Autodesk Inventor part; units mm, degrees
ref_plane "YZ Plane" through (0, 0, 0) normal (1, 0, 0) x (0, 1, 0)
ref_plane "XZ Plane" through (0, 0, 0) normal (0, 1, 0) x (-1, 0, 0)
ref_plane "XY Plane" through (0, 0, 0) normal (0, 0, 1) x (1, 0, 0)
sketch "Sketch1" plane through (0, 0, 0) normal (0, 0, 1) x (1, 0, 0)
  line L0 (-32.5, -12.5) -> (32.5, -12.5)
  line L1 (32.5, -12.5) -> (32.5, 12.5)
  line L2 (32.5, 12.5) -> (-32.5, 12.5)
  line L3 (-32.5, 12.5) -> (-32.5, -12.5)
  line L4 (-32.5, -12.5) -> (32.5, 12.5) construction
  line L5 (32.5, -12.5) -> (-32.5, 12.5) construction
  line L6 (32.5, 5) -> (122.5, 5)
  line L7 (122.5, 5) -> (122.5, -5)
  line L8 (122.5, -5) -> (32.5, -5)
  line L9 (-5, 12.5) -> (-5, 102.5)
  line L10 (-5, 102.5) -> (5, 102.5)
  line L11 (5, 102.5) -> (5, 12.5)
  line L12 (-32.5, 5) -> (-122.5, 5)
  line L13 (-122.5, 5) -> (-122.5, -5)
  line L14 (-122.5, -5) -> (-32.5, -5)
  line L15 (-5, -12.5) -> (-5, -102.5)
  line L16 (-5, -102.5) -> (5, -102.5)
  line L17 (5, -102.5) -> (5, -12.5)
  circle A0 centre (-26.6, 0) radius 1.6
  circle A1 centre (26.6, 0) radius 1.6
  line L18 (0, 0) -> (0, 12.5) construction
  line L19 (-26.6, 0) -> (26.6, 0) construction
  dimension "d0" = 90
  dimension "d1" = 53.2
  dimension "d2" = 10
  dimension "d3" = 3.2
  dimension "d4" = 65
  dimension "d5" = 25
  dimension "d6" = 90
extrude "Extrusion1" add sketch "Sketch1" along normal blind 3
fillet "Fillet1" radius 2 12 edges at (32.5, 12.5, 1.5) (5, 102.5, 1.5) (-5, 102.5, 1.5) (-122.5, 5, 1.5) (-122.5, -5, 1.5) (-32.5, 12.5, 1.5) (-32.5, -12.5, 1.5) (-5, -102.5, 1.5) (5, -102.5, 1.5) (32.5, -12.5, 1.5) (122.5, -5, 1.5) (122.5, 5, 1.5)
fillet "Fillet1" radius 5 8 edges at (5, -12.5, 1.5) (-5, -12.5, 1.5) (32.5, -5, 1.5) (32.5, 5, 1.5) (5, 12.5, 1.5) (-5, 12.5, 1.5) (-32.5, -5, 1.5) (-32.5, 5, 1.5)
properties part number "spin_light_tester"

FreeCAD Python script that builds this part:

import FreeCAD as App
import Part
import Sketcher
from FreeCAD import Vector


def edges_at(feature, points):
    """Names of the edges that pass closest to the given points."""
    edges = feature.Shape.Edges
    near = lambda p: min(range(len(edges)), key=lambda i: edges[i].distToShape(Part.Vertex(*p))[0])
    return sorted({f"Edge{near(p) + 1}" for p in points})

doc = App.newDocument("Part")
body = doc.addObject("PartDesign::Body", "Body")

# Sketch on XY plane
sketch1 = doc.addObject("Sketcher::SketchObject", "Sketch")
body.addObject(sketch1)
sketch1.AttachmentSupport = (doc.XY_Plane, [""])
sketch1.MapMode = "FlatFace"
sketch1.addGeometry(Part.LineSegment(Vector(-32.5, -5, 0), Vector(-32.5, -12.5, 0)), False)
sketch1.addGeometry(Part.LineSegment(Vector(-32.5, -12.5, 0), Vector(-5, -12.5, 0)), False)
sketch1.addGeometry(Part.LineSegment(Vector(-5, -12.5, 0), Vector(-5, -102.5, 0)), False)
sketch1.addGeometry(Part.LineSegment(Vector(-5, -102.5, 0), Vector(5, -102.5, 0)), False)
sketch1.addGeometry(Part.LineSegment(Vector(5, -102.5, 0), Vector(5, -12.5, 0)), False)
sketch1.addGeometry(Part.LineSegment(Vector(5, -12.5, 0), Vector(32.5, -12.5, 0)), False)
sketch1.addGeometry(Part.LineSegment(Vector(32.5, -12.5, 0), Vector(32.5, -5, 0)), False)
sketch1.addGeometry(Part.LineSegment(Vector(32.5, -5, 0), Vector(122.5, -5, 0)), False)
sketch1.addGeometry(Part.LineSegment(Vector(122.5, -5, 0), Vector(122.5, 5, 0)), False)
sketch1.addGeometry(Part.LineSegment(Vector(122.5, 5, 0), Vector(32.5, 5, 0)), False)
sketch1.addGeometry(Part.LineSegment(Vector(32.5, 5, 0), Vector(32.5, 12.5, 0)), False)
sketch1.addGeometry(Part.LineSegment(Vector(32.5, 12.5, 0), Vector(5, 12.5, 0)), False)
sketch1.addGeometry(Part.LineSegment(Vector(5, 12.5, 0), Vector(5, 102.5, 0)), False)
sketch1.addGeometry(Part.LineSegment(Vector(5, 102.5, 0), Vector(-5, 102.5, 0)), False)
sketch1.addGeometry(Part.LineSegment(Vector(-5, 102.5, 0), Vector(-5, 12.5, 0)), False)
sketch1.addGeometry(Part.LineSegment(Vector(-5, 12.5, 0), Vector(-32.5, 12.5, 0)), False)
sketch1.addGeometry(Part.LineSegment(Vector(-32.5, 12.5, 0), Vector(-32.5, 5, 0)), False)
sketch1.addGeometry(Part.LineSegment(Vector(-32.5, 5, 0), Vector(-122.5, 5, 0)), False)
sketch1.addGeometry(Part.LineSegment(Vector(-122.5, 5, 0), Vector(-122.5, -5, 0)), False)
sketch1.addGeometry(Part.LineSegment(Vector(-122.5, -5, 0), Vector(-32.5, -5, 0)), False)
sketch1.addGeometry(Part.Circle(Vector(-26.6, 0, 0), Vector(0, 0, 1), 1.6), False)
sketch1.addGeometry(Part.Circle(Vector(26.6, 0, 0), Vector(0, 0, 1), 1.6), False)
sketch1.addConstraint(Sketcher.Constraint("Coincident", 0, 2, 1, 1))
sketch1.addConstraint(Sketcher.Constraint("Coincident", 1, 2, 2, 1))
sketch1.addConstraint(Sketcher.Constraint("Coincident", 2, 2, 3, 1))
sketch1.addConstraint(Sketcher.Constraint("Coincident", 3, 2, 4, 1))
sketch1.addConstraint(Sketcher.Constraint("Coincident", 4, 2, 5, 1))
sketch1.addConstraint(Sketcher.Constraint("Coincident", 5, 2, 6, 1))
sketch1.addConstraint(Sketcher.Constraint("Coincident", 6, 2, 7, 1))
sketch1.addConstraint(Sketcher.Constraint("Coincident", 7, 2, 8, 1))
sketch1.addConstraint(Sketcher.Constraint("Coincident", 8, 2, 9, 1))
sketch1.addConstraint(Sketcher.Constraint("Coincident", 9, 2, 10, 1))
sketch1.addConstraint(Sketcher.Constraint("Coincident", 10, 2, 11, 1))
sketch1.addConstraint(Sketcher.Constraint("Coincident", 11, 2, 12, 1))
sketch1.addConstraint(Sketcher.Constraint("Coincident", 12, 2, 13, 1))
sketch1.addConstraint(Sketcher.Constraint("Coincident", 13, 2, 14, 1))
sketch1.addConstraint(Sketcher.Constraint("Coincident", 14, 2, 15, 1))
sketch1.addConstraint(Sketcher.Constraint("Coincident", 15, 2, 16, 1))
sketch1.addConstraint(Sketcher.Constraint("Coincident", 16, 2, 17, 1))
sketch1.addConstraint(Sketcher.Constraint("Coincident", 17, 2, 18, 1))
sketch1.addConstraint(Sketcher.Constraint("Coincident", 18, 2, 19, 1))
sketch1.addConstraint(Sketcher.Constraint("Coincident", 19, 2, 0, 1))
sketch1.addConstraint(Sketcher.Constraint("Vertical", 0))
sketch1.addConstraint(Sketcher.Constraint("Horizontal", 1))
sketch1.addConstraint(Sketcher.Constraint("Vertical", 2))
sketch1.addConstraint(Sketcher.Constraint("Horizontal", 3))
sketch1.addConstraint(Sketcher.Constraint("Vertical", 4))
sketch1.addConstraint(Sketcher.Constraint("Horizontal", 5))
sketch1.addConstraint(Sketcher.Constraint("Vertical", 6))
sketch1.addConstraint(Sketcher.Constraint("Horizontal", 7))
sketch1.addConstraint(Sketcher.Constraint("Vertical", 8))
sketch1.addConstraint(Sketcher.Constraint("Horizontal", 9))
sketch1.addConstraint(Sketcher.Constraint("Vertical", 10))
sketch1.addConstraint(Sketcher.Constraint("Horizontal", 11))
sketch1.addConstraint(Sketcher.Constraint("Vertical", 12))
sketch1.addConstraint(Sketcher.Constraint("Horizontal", 13))
sketch1.addConstraint(Sketcher.Constraint("Vertical", 14))
sketch1.addConstraint(Sketcher.Constraint("Horizontal", 15))
sketch1.addConstraint(Sketcher.Constraint("Vertical", 16))
sketch1.addConstraint(Sketcher.Constraint("Horizontal", 17))
sketch1.addConstraint(Sketcher.Constraint("Vertical", 18))
sketch1.addConstraint(Sketcher.Constraint("Horizontal", 19))
sketch1.addConstraint(Sketcher.Constraint("Equal", 20, 21))
sketch1.addConstraint(Sketcher.Constraint("Symmetric", 20, 3, 21, 3, -1, 1))
sketch1.addConstraint(Sketcher.Constraint("Symmetric", 0, 2, 10, 2, -1, 1))
sketch1.addConstraint(Sketcher.Constraint("Symmetric", 2, 2, 12, 2, -1, 1))
sketch1.addConstraint(Sketcher.Constraint("Symmetric", 4, 2, 14, 2, -1, 1))
sketch1.addConstraint(Sketcher.Constraint("Symmetric", 6, 2, 16, 2, -1, 1))
sketch1.addConstraint(Sketcher.Constraint("Symmetric", 8, 2, 18, 2, -1, 1))
sketch1.addConstraint(Sketcher.Constraint("Symmetric", 1, 2, 4, 2, -2))
sketch1.addConstraint(Sketcher.Constraint("Symmetric", 9, 2, 16, 2, -2))
sketch1.addConstraint(Sketcher.Constraint("PointOnObject", 20, 3, -1))
sketch1.addConstraint(Sketcher.Constraint("Equal", 19, 2))
sketch1.addConstraint(Sketcher.Constraint("Equal", 13, 8))
sketch1.addConstraint(Sketcher.Constraint("Diameter", 20, 3.2))
sketch1.addConstraint(Sketcher.Constraint("DistanceX", 3, 1, 3, 2, 10.0))
sketch1.addConstraint(Sketcher.Constraint("DistanceX", 7, 1, 7, 2, 90.0))
sketch1.addConstraint(Sketcher.Constraint("DistanceX", 0, 2, 5, 2, 65.0))
sketch1.addConstraint(Sketcher.Constraint("DistanceY", 5, 2, 10, 2, 25.0))
sketch1.addConstraint(Sketcher.Constraint("DistanceX", 20, 3, 21, 3, 53.2))
pad1 = doc.addObject("PartDesign::Pad", "Pad")
body.addObject(pad1)
pad1.Profile = sketch1
pad1.Length = 3
doc.recompute()

fillet = doc.addObject("PartDesign::Fillet", "Fillet")
body.addObject(fillet)
fillet.Base = (pad1, edges_at(pad1, [
    (32.5, 12.5, 1.5),
    (5, 102.5, 1.5),
    (-5, 102.5, 1.5),
    (-122.5, 5, 1.5),
    (-122.5, -5, 1.5),
    (-32.5, 12.5, 1.5),
    (-32.5, -12.5, 1.5),
    (-5, -102.5, 1.5),
    (5, -102.5, 1.5),
    (32.5, -12.5, 1.5),
    (122.5, -5, 1.5),
    (122.5, 5, 1.5),
]))
fillet.Radius = 2
doc.recompute()

fillet2 = doc.addObject("PartDesign::Fillet", "Fillet001")
body.addObject(fillet2)
fillet2.Base = (fillet, edges_at(fillet, [
    (5, -12.5, 1.5),
    (-5, -12.5, 1.5),
    (32.5, -5, 1.5),
    (32.5, 5, 1.5),
    (5, 12.5, 1.5),
    (-5, 12.5, 1.5),
    (-32.5, -5, 1.5),
    (-32.5, 5, 1.5),
]))
fillet2.Radius = 5

doc.recompute()
